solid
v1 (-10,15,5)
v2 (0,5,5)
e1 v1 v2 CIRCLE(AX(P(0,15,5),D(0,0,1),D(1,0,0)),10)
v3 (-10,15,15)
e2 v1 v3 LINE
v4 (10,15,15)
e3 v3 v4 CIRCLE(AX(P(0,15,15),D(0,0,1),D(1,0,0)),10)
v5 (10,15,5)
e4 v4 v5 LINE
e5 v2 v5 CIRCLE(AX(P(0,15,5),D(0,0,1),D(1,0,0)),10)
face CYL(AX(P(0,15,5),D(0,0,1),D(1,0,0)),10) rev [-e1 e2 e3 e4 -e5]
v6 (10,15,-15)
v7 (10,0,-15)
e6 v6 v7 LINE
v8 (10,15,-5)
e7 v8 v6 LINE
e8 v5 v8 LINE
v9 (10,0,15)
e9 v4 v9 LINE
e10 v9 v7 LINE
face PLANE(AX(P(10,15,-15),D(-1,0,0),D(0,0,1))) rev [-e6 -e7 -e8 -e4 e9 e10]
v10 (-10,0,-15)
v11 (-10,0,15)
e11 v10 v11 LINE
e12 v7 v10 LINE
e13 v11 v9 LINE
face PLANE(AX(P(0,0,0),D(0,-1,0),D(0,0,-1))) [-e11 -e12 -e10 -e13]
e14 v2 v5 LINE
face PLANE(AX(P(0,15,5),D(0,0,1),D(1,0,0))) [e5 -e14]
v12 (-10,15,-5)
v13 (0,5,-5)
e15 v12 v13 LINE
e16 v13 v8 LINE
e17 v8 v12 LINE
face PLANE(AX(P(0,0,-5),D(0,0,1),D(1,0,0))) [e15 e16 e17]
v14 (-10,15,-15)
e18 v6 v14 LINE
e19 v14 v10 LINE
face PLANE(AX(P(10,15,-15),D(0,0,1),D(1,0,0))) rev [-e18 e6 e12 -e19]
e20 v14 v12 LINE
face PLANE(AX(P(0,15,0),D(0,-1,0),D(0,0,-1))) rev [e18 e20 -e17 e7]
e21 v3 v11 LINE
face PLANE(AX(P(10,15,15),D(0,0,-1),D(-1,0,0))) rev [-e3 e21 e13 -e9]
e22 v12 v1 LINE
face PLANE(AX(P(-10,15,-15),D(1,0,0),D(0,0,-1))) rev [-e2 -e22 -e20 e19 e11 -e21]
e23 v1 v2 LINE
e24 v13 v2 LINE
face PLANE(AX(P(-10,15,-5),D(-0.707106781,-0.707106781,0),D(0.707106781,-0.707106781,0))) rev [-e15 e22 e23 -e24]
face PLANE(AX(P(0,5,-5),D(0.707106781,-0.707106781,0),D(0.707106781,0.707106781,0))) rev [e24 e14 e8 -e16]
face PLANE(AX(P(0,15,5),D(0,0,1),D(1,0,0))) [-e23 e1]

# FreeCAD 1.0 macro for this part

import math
import FreeCAD as App
import Part
import Sketcher
Q = App.Units.Quantity


def add_polygon(sketch, points):
    """Adds a closed chain of lines whose ends are joined by coincident constraints."""
    first, n = sketch.GeometryCount, len(points)
    for a, b in zip(points, points[1:] + points[:1]):
        sketch.addGeometry(Part.LineSegment(App.Vector(*a, 0), App.Vector(*b, 0)), False)
    for i in range(n):
        sketch.addConstraint(Sketcher.Constraint("Coincident", first + i, 2, first + (i + 1) % n, 1))

doc = App.newDocument("Part")
params = doc.addObject("Spreadsheet::Sheet", "Params")
for row, (alias, value) in enumerate([
    ("sketch1_width", "20 mm"),
    ("sketch1_height", "30 mm"),
    ("pad1_length", "15 mm"),
    ("sketch2_radius", "10 mm"),
    ("pocket1_length", "10 mm"),
    ("sketch3_width", "20 mm"),
    ("pocket2_length", "10 mm"),
], start=1):
    params.set(f"A{row}", alias)
    params.set(f"B{row}", "=" + value)
    params.setAlias(f"B{row}", alias)

body = doc.addObject("PartDesign::Body", "Body")

sketch1 = body.newObject("Sketcher::SketchObject", "Sketch")
sketch1.AttachmentSupport = (doc.getObject("XZ_Plane"), [""])
sketch1.MapMode = "FlatFace"
add_polygon(sketch1, [(-10, -15), (-10, 15), (10, 15), (10, -15)])
sketch1.addConstraint([
    Sketcher.Constraint("Vertical", 0),
    Sketcher.Constraint("Horizontal", 1),
    Sketcher.Constraint("Vertical", 2),
    Sketcher.Constraint("Horizontal", 3),
    Sketcher.Constraint("Symmetric", 0, 2, 2, 2, -1, 1),
    Sketcher.Constraint("DistanceX", 1, 1, 1, 2, Q("20 mm")),
    Sketcher.Constraint("DistanceY", 0, 1, 0, 2, Q("30 mm")),
])
sketch1.setExpression("Constraints[9]", "Params.sketch1_width")
sketch1.setExpression("Constraints[10]", "Params.sketch1_height")
pad1 = body.newObject("PartDesign::Pad", "Pad")
pad1.Profile = sketch1
pad1.setExpression("Length", "Params.pad1_length")
pad1.Reversed = True

sketch2 = body.newObject("Sketcher::SketchObject", "Sketch001")
sketch2.AttachmentSupport = (doc.getObject("XY_Plane"), [""])
sketch2.MapMode = "FlatFace"
sketch2.AttachmentOffset = App.Placement(App.Vector(0, 0, 15), App.Rotation())
sketch2.addGeometry([
    Part.LineSegment(App.Vector(10, 15, 0), App.Vector(-10, 15, 0)),
    Part.ArcOfCircle(Part.Circle(App.Vector(0, 15, 0), App.Vector(0, 0, 1), 10), math.radians(180), math.radians(360)),
], False)
sketch2.addConstraint([
    Sketcher.Constraint("Coincident", 0, 1, 1, 2),
    Sketcher.Constraint("Coincident", 1, 1, 0, 2),
    Sketcher.Constraint("Horizontal", 0),
    Sketcher.Constraint("PointOnObject", 1, 3, -2),
    Sketcher.Constraint("Horizontal", 1, 3, 0, 1),
    Sketcher.Constraint("Radius", 1, Q("10 mm")),
    Sketcher.Constraint("DistanceY", -1, 1, 1, 3, Q("15 mm")),
])
sketch2.setExpression("Constraints[5]", "Params.sketch2_radius")
pocket1 = body.newObject("PartDesign::Pocket", "Pocket")
pocket1.Profile = sketch2
pocket1.setExpression("Length", "Params.pocket1_length")

sketch3 = body.newObject("Sketcher::SketchObject", "Sketch002")
sketch3.AttachmentSupport = (doc.getObject("XY_Plane"), [""])
sketch3.MapMode = "FlatFace"
sketch3.AttachmentOffset = App.Placement(App.Vector(0, 0, 5), App.Rotation())
add_polygon(sketch3, [(-10, 15), (0, 5), (10, 15)])
sketch3.addConstraint([
    Sketcher.Constraint("Horizontal", 2),
    Sketcher.Constraint("PointOnObject", 0, 2, -2),
    Sketcher.Constraint("Perpendicular", 0, 1),
    Sketcher.Constraint("Equal", 0, 1),
    Sketcher.Constraint("DistanceX", 2, 2, 2, 1, Q("20 mm")),
    Sketcher.Constraint("DistanceY", -1, 1, 0, 2, Q("5 mm")),
])
sketch3.setExpression("Constraints[7]", "Params.sketch3_width")
pocket2 = body.newObject("PartDesign::Pocket", "Pocket001")
pocket2.Profile = sketch3
pocket2.setExpression("Length", "Params.pocket2_length")

doc.recompute()
